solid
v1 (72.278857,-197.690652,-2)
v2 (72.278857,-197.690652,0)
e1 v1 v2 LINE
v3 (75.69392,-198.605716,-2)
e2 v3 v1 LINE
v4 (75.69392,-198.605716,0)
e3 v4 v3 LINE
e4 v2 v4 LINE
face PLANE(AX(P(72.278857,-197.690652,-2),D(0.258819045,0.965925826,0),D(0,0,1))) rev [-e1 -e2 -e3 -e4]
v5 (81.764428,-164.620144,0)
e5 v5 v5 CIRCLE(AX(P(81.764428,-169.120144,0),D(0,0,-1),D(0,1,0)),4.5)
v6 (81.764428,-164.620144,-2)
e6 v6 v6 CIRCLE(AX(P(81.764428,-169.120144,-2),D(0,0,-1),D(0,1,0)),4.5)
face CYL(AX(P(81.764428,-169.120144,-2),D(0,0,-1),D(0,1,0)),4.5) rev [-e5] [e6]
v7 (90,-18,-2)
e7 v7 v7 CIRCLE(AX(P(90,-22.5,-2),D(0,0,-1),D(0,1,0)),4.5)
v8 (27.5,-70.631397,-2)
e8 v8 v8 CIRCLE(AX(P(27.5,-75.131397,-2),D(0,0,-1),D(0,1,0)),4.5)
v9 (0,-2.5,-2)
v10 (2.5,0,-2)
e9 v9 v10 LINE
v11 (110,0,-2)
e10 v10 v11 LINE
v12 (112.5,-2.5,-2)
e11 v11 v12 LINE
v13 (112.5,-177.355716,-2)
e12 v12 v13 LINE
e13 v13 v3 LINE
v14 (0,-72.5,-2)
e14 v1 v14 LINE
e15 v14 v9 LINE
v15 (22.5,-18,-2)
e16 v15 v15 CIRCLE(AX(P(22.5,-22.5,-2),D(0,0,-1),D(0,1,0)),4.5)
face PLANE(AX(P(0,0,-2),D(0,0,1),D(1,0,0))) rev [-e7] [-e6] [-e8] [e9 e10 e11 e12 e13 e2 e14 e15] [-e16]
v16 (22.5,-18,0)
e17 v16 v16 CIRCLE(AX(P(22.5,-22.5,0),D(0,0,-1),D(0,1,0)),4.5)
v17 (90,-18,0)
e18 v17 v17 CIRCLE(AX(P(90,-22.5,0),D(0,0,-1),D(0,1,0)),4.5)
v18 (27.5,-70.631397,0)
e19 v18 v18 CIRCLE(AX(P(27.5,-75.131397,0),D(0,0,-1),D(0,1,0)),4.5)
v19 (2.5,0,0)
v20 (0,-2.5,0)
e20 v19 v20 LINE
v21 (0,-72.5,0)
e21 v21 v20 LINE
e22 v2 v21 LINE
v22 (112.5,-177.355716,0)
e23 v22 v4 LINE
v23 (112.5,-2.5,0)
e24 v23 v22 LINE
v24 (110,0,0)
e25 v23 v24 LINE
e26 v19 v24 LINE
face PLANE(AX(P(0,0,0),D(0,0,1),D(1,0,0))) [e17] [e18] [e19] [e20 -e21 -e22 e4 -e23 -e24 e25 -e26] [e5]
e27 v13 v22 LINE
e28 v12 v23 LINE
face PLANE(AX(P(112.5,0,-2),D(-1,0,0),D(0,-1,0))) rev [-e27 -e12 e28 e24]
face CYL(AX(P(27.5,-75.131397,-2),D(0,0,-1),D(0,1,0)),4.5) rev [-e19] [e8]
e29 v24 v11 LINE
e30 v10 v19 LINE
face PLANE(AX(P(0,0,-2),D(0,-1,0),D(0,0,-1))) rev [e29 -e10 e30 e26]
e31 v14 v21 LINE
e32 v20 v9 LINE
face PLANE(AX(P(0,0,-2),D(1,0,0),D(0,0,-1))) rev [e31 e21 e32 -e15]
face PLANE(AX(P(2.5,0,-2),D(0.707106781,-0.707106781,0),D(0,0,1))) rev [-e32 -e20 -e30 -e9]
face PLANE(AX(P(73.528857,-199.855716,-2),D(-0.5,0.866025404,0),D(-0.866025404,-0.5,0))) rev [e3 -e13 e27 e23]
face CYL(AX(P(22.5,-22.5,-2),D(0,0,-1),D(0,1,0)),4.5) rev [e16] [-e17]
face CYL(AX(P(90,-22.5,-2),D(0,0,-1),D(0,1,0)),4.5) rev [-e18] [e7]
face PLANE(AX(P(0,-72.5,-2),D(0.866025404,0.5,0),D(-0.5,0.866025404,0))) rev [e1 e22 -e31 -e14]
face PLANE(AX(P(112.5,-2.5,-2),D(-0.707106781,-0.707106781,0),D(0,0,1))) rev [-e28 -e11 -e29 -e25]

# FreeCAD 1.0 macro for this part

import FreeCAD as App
import Part
import Sketcher

V = App.Vector
Q = App.Units.Quantity


def edges_at(feature, points):
    """Names of the edges that pass closest to the given points."""
    edges = feature.Shape.Edges
    near = lambda p: min(range(len(edges)), key=lambda i: edges[i].distToShape(Part.Vertex(*p))[0])
    return sorted({f"Edge{near(p) + 1}" for p in points})

doc = App.newDocument("Part")
body = doc.addObject("PartDesign::Body", "Body")

# Sketch on XY plane
sketch1 = doc.addObject("Sketcher::SketchObject", "Sketch")
body.addObject(sketch1)
sketch1.AttachmentSupport = (doc.XY_Plane, [""])
sketch1.MapMode = "FlatFace"
sketch1.addGeometry([
    Part.LineSegment(V(0, 0, 0), V(112, 0, 0)),  # 0
    Part.LineSegment(V(112, 0, 0), V(112, -177, 0)),  # 1
    Part.LineSegment(V(112, -177, 0), V(74, -200, 0)),  # 2
    Part.LineSegment(V(74, -200, 0), V(0, -72, 0)),  # 3
    Part.LineSegment(V(0, -72, 0), V(0, 0, 0)),  # 4
], False)
sketch1.addConstraint([
    Sketcher.Constraint("Coincident", 0, 2, 1, 1),
    Sketcher.Constraint("Coincident", 1, 2, 2, 1),
    Sketcher.Constraint("Coincident", 2, 2, 3, 1),
    Sketcher.Constraint("Coincident", 3, 2, 4, 1),
    Sketcher.Constraint("Coincident", 4, 2, 0, 1),
    Sketcher.Constraint("Horizontal", 0),
    Sketcher.Constraint("Vertical", 1),
    Sketcher.Constraint("Vertical", 4),
    Sketcher.Constraint("Coincident", 4, 2, -1, 1),
    Sketcher.Constraint("Perpendicular", 2, 3),
    Sketcher.Constraint("Angle", 2, Q("-150 deg")),
    Sketcher.Constraint("Distance", 2, Q("45 mm")),
    Sketcher.Constraint("DistanceX", 0, 1, 0, 2, Q("112.5 mm")),
    Sketcher.Constraint("DistanceY", 4, 1, 4, 2, Q("72.5 mm")),
])
pad1 = doc.addObject("PartDesign::Pad", "Pad")
body.addObject(pad1)
pad1.Profile = sketch1
pad1.Length = 2
pad1.Reversed = True

# Sketch on XY plane
sketch2 = doc.addObject("Sketcher::SketchObject", "Sketch001")
body.addObject(sketch2)
sketch2.AttachmentSupport = (doc.XY_Plane, [""])
sketch2.MapMode = "FlatFace"
sketch2.AttachmentOffset = App.Placement(V(0, 0, -2), App.Rotation())
sketch2.addGeometry([
    Part.Circle(V(22.5, -22.5, 0), V(0, 0, 1), 4.5),
    Part.Circle(V(90, -22.5, 0), V(0, 0, 1), 4.5),
    Part.Circle(V(27.5, -75.1, 0), V(0, 0, 1), 4.5),
    Part.Circle(V(81.8, -169.1, 0), V(0, 0, 1), 4.5),
], False)
sketch2.addConstraint([
    Sketcher.Constraint("Equal", 0, 1),
    Sketcher.Constraint("Equal", 1, 2),
    Sketcher.Constraint("Equal", 2, 3),
    Sketcher.Constraint("Horizontal", 0, 3, 1, 3),
    Sketcher.Constraint("Diameter", 0, Q("9 mm")),
    Sketcher.Constraint("DistanceX", -1, 1, 1, 3, Q("90 mm")),
    Sketcher.Constraint("DistanceX", 0, 3, 2, 3, Q("5 mm")),
    Sketcher.Constraint("DistanceX", -1, 1, 0, 3, Q("22.5 mm")),
    Sketcher.Constraint("DistanceY", 0, 3, -1, 1, Q("22.5 mm")),
    Sketcher.Constraint("DistanceX", -1, 1, 3, 3, Q("81.764428 mm")),
    Sketcher.Constraint("DistanceY", 2, 3, -1, 1, Q("75.131397 mm")),
    Sketcher.Constraint("DistanceY", 3, 3, -1, 1, Q("169.120144 mm")),
])
doc.recompute()
hole = doc.addObject("PartDesign::Hole", "Hole")
body.addObject(hole)
hole.Profile = sketch2
hole.ThreadType = "None"
hole.Diameter = 9
hole.DepthType = "ThroughAll"
hole.Reversed = True
doc.recompute()

chamfer = doc.addObject("PartDesign::Chamfer", "Chamfer")
body.addObject(chamfer)
chamfer.Base = (hole, edges_at(hole, [(73.529, -199.856, -1), (112.5, 0, -1), (0, 0, -1)]))
chamfer.Size = 2.5

doc.recompute()
